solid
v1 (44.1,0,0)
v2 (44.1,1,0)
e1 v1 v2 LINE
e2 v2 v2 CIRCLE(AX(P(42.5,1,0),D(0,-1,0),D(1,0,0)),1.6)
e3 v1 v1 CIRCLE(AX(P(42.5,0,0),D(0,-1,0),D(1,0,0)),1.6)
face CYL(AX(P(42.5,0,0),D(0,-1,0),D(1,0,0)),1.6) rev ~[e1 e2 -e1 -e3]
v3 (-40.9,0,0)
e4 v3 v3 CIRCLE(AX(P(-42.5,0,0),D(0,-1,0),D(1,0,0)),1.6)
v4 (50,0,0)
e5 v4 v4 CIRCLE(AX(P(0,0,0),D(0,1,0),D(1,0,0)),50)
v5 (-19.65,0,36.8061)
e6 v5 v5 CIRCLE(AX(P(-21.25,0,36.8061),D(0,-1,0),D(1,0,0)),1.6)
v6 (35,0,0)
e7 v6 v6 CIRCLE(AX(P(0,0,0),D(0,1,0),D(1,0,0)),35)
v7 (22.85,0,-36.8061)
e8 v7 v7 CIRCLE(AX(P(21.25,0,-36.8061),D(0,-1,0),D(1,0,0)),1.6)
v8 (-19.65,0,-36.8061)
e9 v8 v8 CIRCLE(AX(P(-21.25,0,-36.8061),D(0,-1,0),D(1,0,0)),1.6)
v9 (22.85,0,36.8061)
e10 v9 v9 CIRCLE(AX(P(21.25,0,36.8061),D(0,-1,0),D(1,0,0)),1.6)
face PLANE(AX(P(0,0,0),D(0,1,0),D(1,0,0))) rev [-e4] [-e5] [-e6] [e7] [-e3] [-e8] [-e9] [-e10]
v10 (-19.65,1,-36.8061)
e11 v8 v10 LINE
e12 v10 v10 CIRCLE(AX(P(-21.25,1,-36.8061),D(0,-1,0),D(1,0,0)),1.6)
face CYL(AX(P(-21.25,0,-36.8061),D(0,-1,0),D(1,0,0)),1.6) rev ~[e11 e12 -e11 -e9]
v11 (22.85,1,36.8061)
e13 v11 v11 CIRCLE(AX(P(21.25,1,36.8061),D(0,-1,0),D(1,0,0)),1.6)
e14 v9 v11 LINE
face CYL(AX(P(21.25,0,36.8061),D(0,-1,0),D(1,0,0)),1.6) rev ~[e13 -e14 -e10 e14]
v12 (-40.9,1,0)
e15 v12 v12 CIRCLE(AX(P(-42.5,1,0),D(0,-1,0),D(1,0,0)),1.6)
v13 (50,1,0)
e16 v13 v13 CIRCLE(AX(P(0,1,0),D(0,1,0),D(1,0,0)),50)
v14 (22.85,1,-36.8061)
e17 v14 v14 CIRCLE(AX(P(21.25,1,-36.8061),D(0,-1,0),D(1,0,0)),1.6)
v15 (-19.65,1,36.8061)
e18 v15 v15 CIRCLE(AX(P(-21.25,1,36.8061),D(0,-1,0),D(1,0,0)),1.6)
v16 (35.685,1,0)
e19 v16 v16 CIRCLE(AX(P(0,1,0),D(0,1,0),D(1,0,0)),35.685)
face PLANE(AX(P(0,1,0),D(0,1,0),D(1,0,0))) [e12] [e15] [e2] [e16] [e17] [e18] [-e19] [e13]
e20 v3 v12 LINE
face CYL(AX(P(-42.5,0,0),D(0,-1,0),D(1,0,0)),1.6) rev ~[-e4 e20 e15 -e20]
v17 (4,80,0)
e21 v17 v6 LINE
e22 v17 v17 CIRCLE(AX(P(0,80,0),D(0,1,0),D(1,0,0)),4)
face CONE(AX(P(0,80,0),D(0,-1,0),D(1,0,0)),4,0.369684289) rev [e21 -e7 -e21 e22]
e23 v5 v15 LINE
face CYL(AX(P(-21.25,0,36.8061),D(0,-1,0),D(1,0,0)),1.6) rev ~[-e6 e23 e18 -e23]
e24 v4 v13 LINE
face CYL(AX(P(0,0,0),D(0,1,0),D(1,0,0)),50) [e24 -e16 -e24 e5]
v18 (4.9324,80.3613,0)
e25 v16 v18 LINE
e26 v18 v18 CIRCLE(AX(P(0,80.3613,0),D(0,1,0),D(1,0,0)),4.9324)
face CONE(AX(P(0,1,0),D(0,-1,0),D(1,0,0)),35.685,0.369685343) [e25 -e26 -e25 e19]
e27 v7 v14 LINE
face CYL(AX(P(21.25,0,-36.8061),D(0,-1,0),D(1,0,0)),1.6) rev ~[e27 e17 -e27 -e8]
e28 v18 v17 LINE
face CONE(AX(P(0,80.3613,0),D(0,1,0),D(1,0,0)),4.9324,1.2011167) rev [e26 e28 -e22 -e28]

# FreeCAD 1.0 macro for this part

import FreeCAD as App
import Part
import Sketcher
from FreeCAD import Vector
Q = App.Units.Quantity

doc = App.newDocument("Part")
body = doc.addObject("PartDesign::Body", "Body")

# Sketch on XY plane
sketch1 = body.newObject("Sketcher::SketchObject", "Sketch")
sketch1.AttachmentSupport = (doc.getObject("XY_Plane"), [""])
sketch1.MapMode = "FlatFace"
sketch1.addGeometry(Part.LineSegment(Vector(35, 0, 0), Vector(50, 0, 0)), False)
sketch1.addGeometry(Part.LineSegment(Vector(50, 0, 0), Vector(50, 1, 0)), False)
sketch1.addGeometry(Part.LineSegment(Vector(50, 1, 0), Vector(35.7, 1, 0)), False)
sketch1.addGeometry(Part.LineSegment(Vector(35.7, 1, 0), Vector(4.9, 80.4, 0)), False)
sketch1.addGeometry(Part.LineSegment(Vector(4.9, 80.4, 0), Vector(4, 80, 0)), False)
sketch1.addGeometry(Part.LineSegment(Vector(4, 80, 0), Vector(35, 0, 0)), False)
sketch1.addConstraint(Sketcher.Constraint("Coincident", 0, 2, 1, 1))
sketch1.addConstraint(Sketcher.Constraint("Coincident", 1, 2, 2, 1))
sketch1.addConstraint(Sketcher.Constraint("Coincident", 2, 2, 3, 1))
sketch1.addConstraint(Sketcher.Constraint("Coincident", 3, 2, 4, 1))
sketch1.addConstraint(Sketcher.Constraint("Coincident", 4, 2, 5, 1))
sketch1.addConstraint(Sketcher.Constraint("Coincident", 5, 2, 0, 1))
sketch1.addConstraint(Sketcher.Constraint("Horizontal", 0))
sketch1.addConstraint(Sketcher.Constraint("Vertical", 1))
sketch1.addConstraint(Sketcher.Constraint("Horizontal", 2))
sketch1.addConstraint(Sketcher.Constraint("PointOnObject", 0, 2, -1))
sketch1.addConstraint(Sketcher.Constraint("Perpendicular", 3, 4))
sketch1.addConstraint(Sketcher.Constraint("Perpendicular", 4, 5))
sketch1.addConstraint(Sketcher.Constraint("DistanceX", 0, 1, 0, 2, Q("15 mm")))
sketch1.addConstraint(Sketcher.Constraint("DistanceY", 1, 1, 1, 2, Q("1 mm")))
sketch1.addConstraint(Sketcher.Constraint("Distance", 4, Q("1 mm")))
sketch1.addConstraint(Sketcher.Constraint("DistanceX", -1, 1, 4, 2, Q("4 mm")))
sketch1.addConstraint(Sketcher.Constraint("DistanceY", -1, 1, 4, 2, Q("80 mm")))
sketch1.addConstraint(Sketcher.Constraint("DistanceX", -1, 1, 5, 2, Q("35 mm")))
revolution = body.newObject("PartDesign::Revolution", "Revolution")
revolution.Profile = sketch1
revolution.ReferenceAxis = (sketch1, ["V_Axis"])
revolution.Angle = 360

# Sketch on XZ plane
sketch2 = body.newObject("Sketcher::SketchObject", "Sketch001")
sketch2.AttachmentSupport = (doc.getObject("XZ_Plane"), [""])
sketch2.MapMode = "FlatFace"
sketch2.addGeometry(Part.Circle(Vector(-21.2, 36.8, 0), Vector(0, 0, 1), 1.6), False)
sketch2.addGeometry(Part.Circle(Vector(21.2, 36.8, 0), Vector(0, 0, 1), 1.6), False)
sketch2.addGeometry(Part.Circle(Vector(42.5, 0, 0), Vector(0, 0, 1), 1.6), False)
sketch2.addGeometry(Part.Circle(Vector(21.2, -36.8, 0), Vector(0, 0, 1), 1.6), False)
sketch2.addGeometry(Part.Circle(Vector(-21.2, -36.8, 0), Vector(0, 0, 1), 1.6), False)
sketch2.addGeometry(Part.Circle(Vector(-42.5, 0, 0), Vector(0, 0, 1), 1.6), False)
sketch2.addConstraint(Sketcher.Constraint("Equal", 0, 1))
sketch2.addConstraint(Sketcher.Constraint("Equal", 1, 2))
sketch2.addConstraint(Sketcher.Constraint("Equal", 2, 3))
sketch2.addConstraint(Sketcher.Constraint("Equal", 3, 4))
sketch2.addConstraint(Sketcher.Constraint("Equal", 4, 5))
sketch2.addConstraint(Sketcher.Constraint("Symmetric", 0, 3, 3, 3, -1, 1))
sketch2.addConstraint(Sketcher.Constraint("Symmetric", 1, 3, 4, 3, -1, 1))
sketch2.addConstraint(Sketcher.Constraint("Symmetric", 2, 3, 5, 3, -1, 1))
sketch2.addConstraint(Sketcher.Constraint("Symmetric", 0, 3, 1, 3, -2))
sketch2.addConstraint(Sketcher.Constraint("PointOnObject", 2, 3, -1))
sketch2.addConstraint(Sketcher.Constraint("Diameter", 0, Q("3.2 mm")))
sketch2.addConstraint(Sketcher.Constraint("DistanceX", 5, 3, 2, 3, Q("85 mm")))
sketch2.addConstraint(Sketcher.Constraint("DistanceX", 0, 3, 1, 3, Q("42.5 mm")))
sketch2.addConstraint(Sketcher.Constraint("DistanceY", -1, 1, 0, 3, Q("36.806 mm")))
pocket1 = body.newObject("PartDesign::Pocket", "Pocket")
pocket1.Profile = sketch2
pocket1.Type = "ThroughAll"

doc.recompute()
